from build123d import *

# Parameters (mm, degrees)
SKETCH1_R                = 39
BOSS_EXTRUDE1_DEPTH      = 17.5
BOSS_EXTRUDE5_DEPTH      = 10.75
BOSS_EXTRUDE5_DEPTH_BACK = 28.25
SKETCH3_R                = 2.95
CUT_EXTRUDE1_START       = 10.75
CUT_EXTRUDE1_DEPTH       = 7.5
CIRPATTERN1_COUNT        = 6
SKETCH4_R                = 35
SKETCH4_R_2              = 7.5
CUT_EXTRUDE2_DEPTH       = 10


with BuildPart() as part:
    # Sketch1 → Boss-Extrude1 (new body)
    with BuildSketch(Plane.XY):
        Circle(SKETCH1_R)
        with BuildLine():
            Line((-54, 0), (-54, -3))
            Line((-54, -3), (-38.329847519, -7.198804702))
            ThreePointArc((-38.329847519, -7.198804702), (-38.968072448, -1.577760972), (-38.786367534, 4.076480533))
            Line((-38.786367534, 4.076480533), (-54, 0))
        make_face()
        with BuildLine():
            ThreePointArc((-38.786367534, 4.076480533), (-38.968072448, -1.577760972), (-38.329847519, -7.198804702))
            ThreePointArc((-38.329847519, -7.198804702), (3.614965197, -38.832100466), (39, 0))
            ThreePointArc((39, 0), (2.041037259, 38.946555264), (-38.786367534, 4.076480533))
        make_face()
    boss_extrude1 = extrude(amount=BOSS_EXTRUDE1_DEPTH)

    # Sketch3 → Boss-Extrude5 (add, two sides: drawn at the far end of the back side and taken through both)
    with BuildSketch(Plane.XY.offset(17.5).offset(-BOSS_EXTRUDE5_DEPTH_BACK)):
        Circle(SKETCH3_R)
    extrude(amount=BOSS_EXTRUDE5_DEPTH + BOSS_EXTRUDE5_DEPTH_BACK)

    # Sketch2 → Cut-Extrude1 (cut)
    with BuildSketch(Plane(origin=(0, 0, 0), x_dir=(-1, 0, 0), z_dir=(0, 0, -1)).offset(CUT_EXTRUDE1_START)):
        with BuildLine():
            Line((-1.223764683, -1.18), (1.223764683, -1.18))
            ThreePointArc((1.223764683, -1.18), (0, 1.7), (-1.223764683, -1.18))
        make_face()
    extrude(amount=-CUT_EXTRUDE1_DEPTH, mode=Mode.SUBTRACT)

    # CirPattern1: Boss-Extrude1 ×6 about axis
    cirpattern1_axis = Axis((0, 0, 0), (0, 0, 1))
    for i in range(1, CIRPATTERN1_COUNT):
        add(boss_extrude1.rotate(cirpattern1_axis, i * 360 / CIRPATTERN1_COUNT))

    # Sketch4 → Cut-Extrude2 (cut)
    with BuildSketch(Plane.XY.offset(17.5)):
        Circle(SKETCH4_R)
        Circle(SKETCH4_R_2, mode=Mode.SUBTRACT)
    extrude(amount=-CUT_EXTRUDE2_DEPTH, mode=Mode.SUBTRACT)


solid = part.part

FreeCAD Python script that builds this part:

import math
import FreeCAD as App
import Part
import Sketcher
Q = App.Units.Quantity

doc = App.newDocument("Part")
body = doc.addObject("PartDesign::Body", "Body")

# Sketch on XY plane
sketch1 = doc.addObject("Sketcher::SketchObject", "Sketch")
body.addObject(sketch1)
sketch1.AttachmentSupport = (doc.XY_Plane, [""])
sketch1.MapMode = "FlatFace"
sketch1.addGeometry(Part.LineSegment(App.Vector(-38.786368, 4.076481, 0), App.Vector(-54, 0, 0)), False)
sketch1.addGeometry(Part.LineSegment(App.Vector(-54, 0, 0), App.Vector(-54, -3, 0)), False)
sketch1.addGeometry(Part.LineSegment(App.Vector(-54, -3, 0), App.Vector(-38.329848, -7.198805, 0)), False)
sketch1.addGeometry(Part.ArcOfCircle(Part.Circle(App.Vector(0, 0, 0), App.Vector(0, 0, 1), 39), math.radians(-169.363077), math.radians(174.000191)), False)
sketch1.addConstraint(Sketcher.Constraint("Coincident", 0, 2, 1, 1))
sketch1.addConstraint(Sketcher.Constraint("Coincident", 1, 2, 2, 1))
sketch1.addConstraint(Sketcher.Constraint("Coincident", 2, 2, 3, 1))
sketch1.addConstraint(Sketcher.Constraint("Coincident", 3, 2, 0, 1))
sketch1.addConstraint(Sketcher.Constraint("Vertical", 1))
sketch1.addConstraint(Sketcher.Constraint("Coincident", 3, 3, -1, 1))
sketch1.addConstraint(Sketcher.Constraint("PointOnObject", 0, 2, -1))
sketch1.addConstraint(Sketcher.Constraint("Radius", 3, Q("39 mm")))
sketch1.addConstraint(Sketcher.Constraint("DistanceY", 1, 2, 1, 1, Q("3 mm")))
sketch1.addConstraint(Sketcher.Constraint("Angle", 0, Q("-165 deg")))
sketch1.addConstraint(Sketcher.Constraint("Angle", 2, Q("-15 deg")))
sketch1.addConstraint(Sketcher.Constraint("DistanceX", 0, 2, -1, 1, Q("54 mm")))
pad1 = doc.addObject("PartDesign::Pad", "Pad")
body.addObject(pad1)
pad1.Profile = sketch1
pad1.Length = 17.5

# Sketch on XY plane
sketch2 = doc.addObject("Sketcher::SketchObject", "Sketch001")
body.addObject(sketch2)
sketch2.AttachmentSupport = (doc.XY_Plane, [""])
sketch2.MapMode = "FlatFace"
sketch2.AttachmentOffset = App.Placement(App.Vector(0, 0, 17.5), App.Rotation())
sketch2.addGeometry(Part.Circle(App.Vector(0, 0, 0), App.Vector(0, 0, 1), 2.95), False)
sketch2.addConstraint(Sketcher.Constraint("Coincident", 0, 3, -1, 1))
sketch2.addConstraint(Sketcher.Constraint("Diameter", 0, Q("5.9 mm")))
pad2 = doc.addObject("PartDesign::Pad", "Pad001")
body.addObject(pad2)
pad2.Profile = sketch2
pad2.Type = "TwoLengths"
pad2.Length = 10.75
pad2.Length2 = 28.25

# Sketch on XY plane
sketch3 = doc.addObject("Sketcher::SketchObject", "Sketch002")
body.addObject(sketch3)
sketch3.AttachmentSupport = (doc.XY_Plane, [""])
sketch3.MapMode = "FlatFace"
sketch3.AttachmentOffset = App.Placement(App.Vector(0, 0, -10.75), App.Rotation())
sketch3.addGeometry(Part.LineSegment(App.Vector(1.223765, -1.18, 0), App.Vector(-1.223765, -1.18, 0)), False)
sketch3.addGeometry(Part.ArcOfCircle(Part.Circle(App.Vector(0, 0, 0), App.Vector(0, 0, 1), 1.7), math.radians(-43.956947), math.radians(223.956947)), False)
sketch3.addConstraint(Sketcher.Constraint("Coincident", 0, 1, 1, 1))
sketch3.addConstraint(Sketcher.Constraint("Coincident", 1, 2, 0, 2))
sketch3.addConstraint(Sketcher.Constraint("Horizontal", 0))
sketch3.addConstraint(Sketcher.Constraint("Coincident", 1, 3, -1, 1))
sketch3.addConstraint(Sketcher.Constraint("Radius", 1, Q("1.7 mm")))
sketch3.addConstraint(Sketcher.Constraint("DistanceY", 0, 1, -1, 1, Q("1.18 mm")))
pocket1 = doc.addObject("PartDesign::Pocket", "Pocket")
body.addObject(pocket1)
pocket1.Profile = sketch3
pocket1.Length = 7.5
pocket1.Reversed = True
doc.recompute()

polarpattern = doc.addObject("PartDesign::PolarPattern", "PolarPattern")
body.addObject(polarpattern)
polarpattern.Originals = [pad1]
polarpattern.Axis = (doc.Z_Axis, [""])
polarpattern.Angle = 360
polarpattern.Occurrences = 6
body.Tip = polarpattern

# Sketch on XY plane
sketch4 = doc.addObject("Sketcher::SketchObject", "Sketch003")
body.addObject(sketch4)
sketch4.AttachmentSupport = (doc.XY_Plane, [""])
sketch4.MapMode = "FlatFace"
sketch4.AttachmentOffset = App.Placement(App.Vector(0, 0, 17.5), App.Rotation())
sketch4.addGeometry(Part.Circle(App.Vector(0, 0, 0), App.Vector(0, 0, 1), 35), False)
sketch4.addGeometry(Part.Circle(App.Vector(0, 0, 0), App.Vector(0, 0, 1), 7.5), False)
sketch4.addConstraint(Sketcher.Constraint("Coincident", 0, 3, -1, 1))
sketch4.addConstraint(Sketcher.Constraint("Coincident", 1, 3, -1, 1))
sketch4.addConstraint(Sketcher.Constraint("Diameter", 0, Q("70 mm")))
sketch4.addConstraint(Sketcher.Constraint("Diameter", 1, Q("15 mm")))
pocket2 = doc.addObject("PartDesign::Pocket", "Pocket001")
body.addObject(pocket2)
pocket2.Profile = sketch4
pocket2.Length = 10

doc.recompute()
